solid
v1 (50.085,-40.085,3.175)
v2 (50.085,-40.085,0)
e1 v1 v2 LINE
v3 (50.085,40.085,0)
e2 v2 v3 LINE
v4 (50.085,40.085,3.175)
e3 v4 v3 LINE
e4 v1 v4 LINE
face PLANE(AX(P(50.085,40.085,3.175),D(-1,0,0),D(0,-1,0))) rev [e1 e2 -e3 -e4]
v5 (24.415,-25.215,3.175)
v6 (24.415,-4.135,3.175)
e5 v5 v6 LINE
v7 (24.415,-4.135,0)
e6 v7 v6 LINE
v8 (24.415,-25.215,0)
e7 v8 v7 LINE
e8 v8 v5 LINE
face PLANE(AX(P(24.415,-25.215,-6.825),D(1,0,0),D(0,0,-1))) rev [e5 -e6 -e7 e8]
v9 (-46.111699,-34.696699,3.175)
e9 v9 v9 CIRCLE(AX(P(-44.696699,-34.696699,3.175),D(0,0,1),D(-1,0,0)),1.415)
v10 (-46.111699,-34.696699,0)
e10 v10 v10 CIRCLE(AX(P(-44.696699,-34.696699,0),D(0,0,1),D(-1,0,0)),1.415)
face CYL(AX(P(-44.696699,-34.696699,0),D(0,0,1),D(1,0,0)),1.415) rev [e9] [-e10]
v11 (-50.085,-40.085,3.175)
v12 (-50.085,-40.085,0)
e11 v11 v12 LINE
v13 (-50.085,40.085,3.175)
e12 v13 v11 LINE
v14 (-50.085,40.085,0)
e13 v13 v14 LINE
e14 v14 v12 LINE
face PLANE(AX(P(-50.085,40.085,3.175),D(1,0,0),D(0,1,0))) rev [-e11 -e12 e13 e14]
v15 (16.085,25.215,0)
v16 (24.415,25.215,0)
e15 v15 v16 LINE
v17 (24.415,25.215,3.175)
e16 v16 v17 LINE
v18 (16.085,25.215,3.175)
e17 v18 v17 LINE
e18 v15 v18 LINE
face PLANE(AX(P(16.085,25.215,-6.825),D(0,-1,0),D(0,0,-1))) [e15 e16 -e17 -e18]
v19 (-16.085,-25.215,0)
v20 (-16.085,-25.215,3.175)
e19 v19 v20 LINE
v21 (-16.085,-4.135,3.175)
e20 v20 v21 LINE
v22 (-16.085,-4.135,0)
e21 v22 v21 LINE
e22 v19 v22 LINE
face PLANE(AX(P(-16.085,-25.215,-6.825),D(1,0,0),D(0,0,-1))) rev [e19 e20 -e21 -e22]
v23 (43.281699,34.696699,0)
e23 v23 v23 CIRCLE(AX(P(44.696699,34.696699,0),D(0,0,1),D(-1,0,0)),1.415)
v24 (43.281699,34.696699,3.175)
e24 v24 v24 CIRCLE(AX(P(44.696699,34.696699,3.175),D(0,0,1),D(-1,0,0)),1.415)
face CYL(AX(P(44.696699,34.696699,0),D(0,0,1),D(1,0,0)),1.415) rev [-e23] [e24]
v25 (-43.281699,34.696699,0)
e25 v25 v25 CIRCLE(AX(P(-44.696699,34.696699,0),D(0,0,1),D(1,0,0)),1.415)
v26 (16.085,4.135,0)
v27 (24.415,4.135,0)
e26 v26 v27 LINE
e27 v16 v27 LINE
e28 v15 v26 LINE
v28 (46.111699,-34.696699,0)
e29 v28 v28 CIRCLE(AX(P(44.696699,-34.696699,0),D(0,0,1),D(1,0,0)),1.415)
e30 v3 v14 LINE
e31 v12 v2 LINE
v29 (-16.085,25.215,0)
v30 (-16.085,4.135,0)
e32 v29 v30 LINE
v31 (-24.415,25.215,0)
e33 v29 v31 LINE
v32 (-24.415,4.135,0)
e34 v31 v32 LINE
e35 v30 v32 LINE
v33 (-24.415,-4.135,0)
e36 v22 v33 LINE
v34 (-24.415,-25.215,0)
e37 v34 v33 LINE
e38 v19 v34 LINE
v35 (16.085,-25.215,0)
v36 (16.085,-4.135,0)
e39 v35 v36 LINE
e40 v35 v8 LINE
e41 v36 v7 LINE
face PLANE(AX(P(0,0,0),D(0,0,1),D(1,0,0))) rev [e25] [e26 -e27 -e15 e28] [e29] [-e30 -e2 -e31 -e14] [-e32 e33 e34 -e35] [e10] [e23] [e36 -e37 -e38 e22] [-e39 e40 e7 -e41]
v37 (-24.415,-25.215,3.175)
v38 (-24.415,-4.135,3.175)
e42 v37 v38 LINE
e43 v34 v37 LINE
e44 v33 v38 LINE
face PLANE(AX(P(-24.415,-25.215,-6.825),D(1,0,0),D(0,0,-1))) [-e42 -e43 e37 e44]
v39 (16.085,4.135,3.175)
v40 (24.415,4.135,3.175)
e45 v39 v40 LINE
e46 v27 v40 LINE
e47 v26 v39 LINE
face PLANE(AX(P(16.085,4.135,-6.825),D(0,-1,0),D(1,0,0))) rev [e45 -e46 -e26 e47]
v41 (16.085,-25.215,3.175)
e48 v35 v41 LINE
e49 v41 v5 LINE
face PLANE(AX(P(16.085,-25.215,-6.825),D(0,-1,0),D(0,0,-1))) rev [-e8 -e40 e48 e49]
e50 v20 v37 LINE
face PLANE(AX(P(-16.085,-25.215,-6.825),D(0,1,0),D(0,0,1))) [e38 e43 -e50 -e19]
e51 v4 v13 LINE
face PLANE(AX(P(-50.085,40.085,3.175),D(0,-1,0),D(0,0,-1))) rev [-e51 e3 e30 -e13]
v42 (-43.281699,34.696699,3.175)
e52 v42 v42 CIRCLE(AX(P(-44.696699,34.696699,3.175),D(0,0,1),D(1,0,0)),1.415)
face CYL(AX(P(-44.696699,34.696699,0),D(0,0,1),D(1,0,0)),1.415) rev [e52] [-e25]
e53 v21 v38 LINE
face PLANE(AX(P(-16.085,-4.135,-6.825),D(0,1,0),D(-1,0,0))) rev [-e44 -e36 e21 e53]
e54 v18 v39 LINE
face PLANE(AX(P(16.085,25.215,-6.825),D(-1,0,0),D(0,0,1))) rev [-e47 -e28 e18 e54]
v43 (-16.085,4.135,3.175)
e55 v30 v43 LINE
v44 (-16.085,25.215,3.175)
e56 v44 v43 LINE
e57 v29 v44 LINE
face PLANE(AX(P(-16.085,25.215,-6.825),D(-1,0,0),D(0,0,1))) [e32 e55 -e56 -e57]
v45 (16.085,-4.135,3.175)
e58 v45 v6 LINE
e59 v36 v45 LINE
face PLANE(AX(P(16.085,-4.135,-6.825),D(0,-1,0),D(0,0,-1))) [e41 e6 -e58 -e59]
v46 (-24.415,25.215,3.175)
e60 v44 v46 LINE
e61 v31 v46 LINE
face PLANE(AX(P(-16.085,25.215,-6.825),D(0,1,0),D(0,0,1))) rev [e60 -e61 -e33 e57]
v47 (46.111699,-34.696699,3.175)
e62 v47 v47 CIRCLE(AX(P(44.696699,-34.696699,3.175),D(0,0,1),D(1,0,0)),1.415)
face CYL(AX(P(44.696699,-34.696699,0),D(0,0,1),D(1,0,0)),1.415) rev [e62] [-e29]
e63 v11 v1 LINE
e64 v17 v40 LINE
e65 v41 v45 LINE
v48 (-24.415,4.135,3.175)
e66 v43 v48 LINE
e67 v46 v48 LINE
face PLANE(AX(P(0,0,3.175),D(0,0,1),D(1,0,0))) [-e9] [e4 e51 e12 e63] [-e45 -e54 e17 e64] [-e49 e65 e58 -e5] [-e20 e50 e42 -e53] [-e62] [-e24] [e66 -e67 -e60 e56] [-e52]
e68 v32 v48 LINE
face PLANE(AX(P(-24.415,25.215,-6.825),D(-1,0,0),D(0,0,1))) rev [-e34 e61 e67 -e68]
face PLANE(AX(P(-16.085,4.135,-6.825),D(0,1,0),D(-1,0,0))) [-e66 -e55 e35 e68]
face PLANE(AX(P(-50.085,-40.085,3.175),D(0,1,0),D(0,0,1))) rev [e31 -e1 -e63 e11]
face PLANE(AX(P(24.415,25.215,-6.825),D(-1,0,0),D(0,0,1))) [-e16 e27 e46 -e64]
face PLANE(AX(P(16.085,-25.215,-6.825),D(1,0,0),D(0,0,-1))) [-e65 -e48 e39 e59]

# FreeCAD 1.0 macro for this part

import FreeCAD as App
import Part
import Sketcher

V = App.Vector
Q = App.Units.Quantity

doc = App.newDocument("Part")
body = doc.addObject("PartDesign::Body", "Body")

# Sketch on XY plane
sketch1 = doc.addObject("Sketcher::SketchObject", "Sketch")
body.addObject(sketch1)
sketch1.AttachmentSupport = (doc.XY_Plane, [""])
sketch1.MapMode = "FlatFace"
sketch1.addGeometry(Part.LineSegment(V(-50, 40, 0), V(-50, -40, 0)), False)
sketch1.addGeometry(Part.LineSegment(V(-50, -40, 0), V(50, -40, 0)), False)
sketch1.addGeometry(Part.LineSegment(V(50, -40, 0), V(50, 40, 0)), False)
sketch1.addGeometry(Part.LineSegment(V(50, 40, 0), V(-50, 40, 0)), False)
sketch1.addConstraint(Sketcher.Constraint("Coincident", 0, 2, 1, 1))
sketch1.addConstraint(Sketcher.Constraint("Coincident", 1, 2, 2, 1))
sketch1.addConstraint(Sketcher.Constraint("Coincident", 2, 2, 3, 1))
sketch1.addConstraint(Sketcher.Constraint("Coincident", 3, 2, 0, 1))
sketch1.addConstraint(Sketcher.Constraint("Vertical", 0))
sketch1.addConstraint(Sketcher.Constraint("Horizontal", 1))
sketch1.addConstraint(Sketcher.Constraint("Vertical", 2))
sketch1.addConstraint(Sketcher.Constraint("Horizontal", 3))
sketch1.addConstraint(Sketcher.Constraint("Symmetric", 0, 2, 2, 2, -1, 1))
sketch1.addConstraint(Sketcher.Constraint("DistanceX", 1, 1, 1, 2, Q("100.17 mm")))
sketch1.addConstraint(Sketcher.Constraint("DistanceY", 0, 2, 0, 1, Q("80.17 mm")))
pad1 = doc.addObject("PartDesign::Pad", "Pad")
body.addObject(pad1)
pad1.Profile = sketch1
pad1.Length = 3.175

# Sketch on XY plane
sketch2 = doc.addObject("Sketcher::SketchObject", "Sketch001")
body.addObject(sketch2)
sketch2.AttachmentSupport = (doc.XY_Plane, [""])
sketch2.MapMode = "FlatFace"
sketch2.AttachmentOffset = App.Placement(V(0, 0, 3.175), App.Rotation())
sketch2.addGeometry(Part.Circle(V(-44.7, 34.7, 0), V(0, 0, 1), 1.4), False)
sketch2.addGeometry(Part.Circle(V(44.7, 34.7, 0), V(0, 0, 1), 1.4), False)
sketch2.addGeometry(Part.Circle(V(44.7, -34.7, 0), V(0, 0, 1), 1.4), False)
sketch2.addGeometry(Part.Circle(V(-44.7, -34.7, 0), V(0, 0, 1), 1.4), False)
sketch2.addConstraint(Sketcher.Constraint("Equal", 0, 1))
sketch2.addConstraint(Sketcher.Constraint("Equal", 1, 2))
sketch2.addConstraint(Sketcher.Constraint("Equal", 2, 3))
sketch2.addConstraint(Sketcher.Constraint("Symmetric", 0, 3, 2, 3, -1, 1))
sketch2.addConstraint(Sketcher.Constraint("Symmetric", 1, 3, 3, 3, -1, 1))
sketch2.addConstraint(Sketcher.Constraint("Symmetric", 0, 3, 1, 3, -2))
sketch2.addConstraint(Sketcher.Constraint("Diameter", 0, Q("2.83 mm")))
sketch2.addConstraint(Sketcher.Constraint("DistanceX", 0, 3, -1, 1, Q("44.696699 mm")))
sketch2.addConstraint(Sketcher.Constraint("DistanceY", -1, 1, 0, 3, Q("34.696699 mm")))
pocket1 = doc.addObject("PartDesign::Pocket", "Pocket")
body.addObject(pocket1)
pocket1.Profile = sketch2
pocket1.Type = "ThroughAll"

# Sketch on XY plane
sketch3 = doc.addObject("Sketcher::SketchObject", "Sketch002")
body.addObject(sketch3)
sketch3.AttachmentSupport = (doc.XY_Plane, [""])
sketch3.MapMode = "FlatFace"
sketch3.AttachmentOffset = App.Placement(V(0, 0, 3.175), App.Rotation())
sketch3.addGeometry(Part.LineSegment(V(-24, 25, 0), V(-24, 4, 0)), False)
sketch3.addGeometry(Part.LineSegment(V(-24, 4, 0), V(-16, 4, 0)), False)
sketch3.addGeometry(Part.LineSegment(V(-16, 4, 0), V(-16, 25, 0)), False)
sketch3.addGeometry(Part.LineSegment(V(-16, 25, 0), V(-24, 25, 0)), False)
sketch3.addGeometry(Part.LineSegment(V(16, 25, 0), V(16, 4, 0)), False)
sketch3.addGeometry(Part.LineSegment(V(16, 4, 0), V(24, 4, 0)), False)
sketch3.addGeometry(Part.LineSegment(V(24, 4, 0), V(24, 25, 0)), False)
sketch3.addGeometry(Part.LineSegment(V(24, 25, 0), V(16, 25, 0)), False)
sketch3.addGeometry(Part.LineSegment(V(-24, -4, 0), V(-24, -25, 0)), False)
sketch3.addGeometry(Part.LineSegment(V(-24, -25, 0), V(-16, -25, 0)), False)
sketch3.addGeometry(Part.LineSegment(V(-16, -25, 0), V(-16, -4, 0)), False)
sketch3.addGeometry(Part.LineSegment(V(-16, -4, 0), V(-24, -4, 0)), False)
sketch3.addGeometry(Part.LineSegment(V(16, -4, 0), V(16, -25, 0)), False)
sketch3.addGeometry(Part.LineSegment(V(16, -25, 0), V(24, -25, 0)), False)
sketch3.addGeometry(Part.LineSegment(V(24, -25, 0), V(24, -4, 0)), False)
sketch3.addGeometry(Part.LineSegment(V(24, -4, 0), V(16, -4, 0)), False)
sketch3.addConstraint(Sketcher.Constraint("Coincident", 0, 2, 1, 1))
sketch3.addConstraint(Sketcher.Constraint("Coincident", 1, 2, 2, 1))
sketch3.addConstraint(Sketcher.Constraint("Coincident", 2, 2, 3, 1))
sketch3.addConstraint(Sketcher.Constraint("Coincident", 3, 2, 0, 1))
sketch3.addConstraint(Sketcher.Constraint("Coincident", 4, 2, 5, 1))
sketch3.addConstraint(Sketcher.Constraint("Coincident", 5, 2, 6, 1))
sketch3.addConstraint(Sketcher.Constraint("Coincident", 6, 2, 7, 1))
sketch3.addConstraint(Sketcher.Constraint("Coincident", 7, 2, 4, 1))
sketch3.addConstraint(Sketcher.Constraint("Coincident", 8, 2, 9, 1))
sketch3.addConstraint(Sketcher.Constraint("Coincident", 9, 2, 10, 1))
sketch3.addConstraint(Sketcher.Constraint("Coincident", 10, 2, 11, 1))
sketch3.addConstraint(Sketcher.Constraint("Coincident", 11, 2, 8, 1))
sketch3.addConstraint(Sketcher.Constraint("Coincident", 12, 2, 13, 1))
sketch3.addConstraint(Sketcher.Constraint("Coincident", 13, 2, 14, 1))
sketch3.addConstraint(Sketcher.Constraint("Coincident", 14, 2, 15, 1))
sketch3.addConstraint(Sketcher.Constraint("Coincident", 15, 2, 12, 1))
sketch3.addConstraint(Sketcher.Constraint("Vertical", 0))
sketch3.addConstraint(Sketcher.Constraint("Horizontal", 1))
sketch3.addConstraint(Sketcher.Constraint("Vertical", 2))
sketch3.addConstraint(Sketcher.Constraint("Horizontal", 3))
sketch3.addConstraint(Sketcher.Constraint("Vertical", 4))
sketch3.addConstraint(Sketcher.Constraint("Horizontal", 5))
sketch3.addConstraint(Sketcher.Constraint("Vertical", 6))
sketch3.addConstraint(Sketcher.Constraint("Horizontal", 7))
sketch3.addConstraint(Sketcher.Constraint("Vertical", 8))
sketch3.addConstraint(Sketcher.Constraint("Horizontal", 9))
sketch3.addConstraint(Sketcher.Constraint("Vertical", 10))
sketch3.addConstraint(Sketcher.Constraint("Horizontal", 11))
sketch3.addConstraint(Sketcher.Constraint("Vertical", 12))
sketch3.addConstraint(Sketcher.Constraint("Horizontal", 13))
sketch3.addConstraint(Sketcher.Constraint("Vertical", 14))
sketch3.addConstraint(Sketcher.Constraint("Horizontal", 15))
sketch3.addConstraint(Sketcher.Constraint("Symmetric", 6, 2, 8, 2, -1, 1))
sketch3.addConstraint(Sketcher.Constraint("Symmetric", 4, 2, 10, 2, -1, 1))
sketch3.addConstraint(Sketcher.Constraint("Symmetric", 2, 2, 12, 2, -1, 1))
sketch3.addConstraint(Sketcher.Constraint("Symmetric", 0, 2, 14, 2, -1, 1))
sketch3.addConstraint(Sketcher.Constraint("Symmetric", 1, 2, 4, 2, -2))
sketch3.addConstraint(Sketcher.Constraint("Symmetric", 3, 2, 6, 2, -2))
sketch3.addConstraint(Sketcher.Constraint("DistanceX", 1, 1, 1, 2, Q("8.33 mm")))
sketch3.addConstraint(Sketcher.Constraint("DistanceY", 0, 2, 0, 1, Q("21.08 mm")))
sketch3.addConstraint(Sketcher.Constraint("DistanceX", 0, 2, 4, 2, Q("40.5 mm")))
sketch3.addConstraint(Sketcher.Constraint("DistanceY", 8, 2, 0, 2, Q("29.35 mm")))
pocket2 = doc.addObject("PartDesign::Pocket", "Pocket001")
body.addObject(pocket2)
pocket2.Profile = sketch3
pocket2.Length = 10

doc.recompute()
